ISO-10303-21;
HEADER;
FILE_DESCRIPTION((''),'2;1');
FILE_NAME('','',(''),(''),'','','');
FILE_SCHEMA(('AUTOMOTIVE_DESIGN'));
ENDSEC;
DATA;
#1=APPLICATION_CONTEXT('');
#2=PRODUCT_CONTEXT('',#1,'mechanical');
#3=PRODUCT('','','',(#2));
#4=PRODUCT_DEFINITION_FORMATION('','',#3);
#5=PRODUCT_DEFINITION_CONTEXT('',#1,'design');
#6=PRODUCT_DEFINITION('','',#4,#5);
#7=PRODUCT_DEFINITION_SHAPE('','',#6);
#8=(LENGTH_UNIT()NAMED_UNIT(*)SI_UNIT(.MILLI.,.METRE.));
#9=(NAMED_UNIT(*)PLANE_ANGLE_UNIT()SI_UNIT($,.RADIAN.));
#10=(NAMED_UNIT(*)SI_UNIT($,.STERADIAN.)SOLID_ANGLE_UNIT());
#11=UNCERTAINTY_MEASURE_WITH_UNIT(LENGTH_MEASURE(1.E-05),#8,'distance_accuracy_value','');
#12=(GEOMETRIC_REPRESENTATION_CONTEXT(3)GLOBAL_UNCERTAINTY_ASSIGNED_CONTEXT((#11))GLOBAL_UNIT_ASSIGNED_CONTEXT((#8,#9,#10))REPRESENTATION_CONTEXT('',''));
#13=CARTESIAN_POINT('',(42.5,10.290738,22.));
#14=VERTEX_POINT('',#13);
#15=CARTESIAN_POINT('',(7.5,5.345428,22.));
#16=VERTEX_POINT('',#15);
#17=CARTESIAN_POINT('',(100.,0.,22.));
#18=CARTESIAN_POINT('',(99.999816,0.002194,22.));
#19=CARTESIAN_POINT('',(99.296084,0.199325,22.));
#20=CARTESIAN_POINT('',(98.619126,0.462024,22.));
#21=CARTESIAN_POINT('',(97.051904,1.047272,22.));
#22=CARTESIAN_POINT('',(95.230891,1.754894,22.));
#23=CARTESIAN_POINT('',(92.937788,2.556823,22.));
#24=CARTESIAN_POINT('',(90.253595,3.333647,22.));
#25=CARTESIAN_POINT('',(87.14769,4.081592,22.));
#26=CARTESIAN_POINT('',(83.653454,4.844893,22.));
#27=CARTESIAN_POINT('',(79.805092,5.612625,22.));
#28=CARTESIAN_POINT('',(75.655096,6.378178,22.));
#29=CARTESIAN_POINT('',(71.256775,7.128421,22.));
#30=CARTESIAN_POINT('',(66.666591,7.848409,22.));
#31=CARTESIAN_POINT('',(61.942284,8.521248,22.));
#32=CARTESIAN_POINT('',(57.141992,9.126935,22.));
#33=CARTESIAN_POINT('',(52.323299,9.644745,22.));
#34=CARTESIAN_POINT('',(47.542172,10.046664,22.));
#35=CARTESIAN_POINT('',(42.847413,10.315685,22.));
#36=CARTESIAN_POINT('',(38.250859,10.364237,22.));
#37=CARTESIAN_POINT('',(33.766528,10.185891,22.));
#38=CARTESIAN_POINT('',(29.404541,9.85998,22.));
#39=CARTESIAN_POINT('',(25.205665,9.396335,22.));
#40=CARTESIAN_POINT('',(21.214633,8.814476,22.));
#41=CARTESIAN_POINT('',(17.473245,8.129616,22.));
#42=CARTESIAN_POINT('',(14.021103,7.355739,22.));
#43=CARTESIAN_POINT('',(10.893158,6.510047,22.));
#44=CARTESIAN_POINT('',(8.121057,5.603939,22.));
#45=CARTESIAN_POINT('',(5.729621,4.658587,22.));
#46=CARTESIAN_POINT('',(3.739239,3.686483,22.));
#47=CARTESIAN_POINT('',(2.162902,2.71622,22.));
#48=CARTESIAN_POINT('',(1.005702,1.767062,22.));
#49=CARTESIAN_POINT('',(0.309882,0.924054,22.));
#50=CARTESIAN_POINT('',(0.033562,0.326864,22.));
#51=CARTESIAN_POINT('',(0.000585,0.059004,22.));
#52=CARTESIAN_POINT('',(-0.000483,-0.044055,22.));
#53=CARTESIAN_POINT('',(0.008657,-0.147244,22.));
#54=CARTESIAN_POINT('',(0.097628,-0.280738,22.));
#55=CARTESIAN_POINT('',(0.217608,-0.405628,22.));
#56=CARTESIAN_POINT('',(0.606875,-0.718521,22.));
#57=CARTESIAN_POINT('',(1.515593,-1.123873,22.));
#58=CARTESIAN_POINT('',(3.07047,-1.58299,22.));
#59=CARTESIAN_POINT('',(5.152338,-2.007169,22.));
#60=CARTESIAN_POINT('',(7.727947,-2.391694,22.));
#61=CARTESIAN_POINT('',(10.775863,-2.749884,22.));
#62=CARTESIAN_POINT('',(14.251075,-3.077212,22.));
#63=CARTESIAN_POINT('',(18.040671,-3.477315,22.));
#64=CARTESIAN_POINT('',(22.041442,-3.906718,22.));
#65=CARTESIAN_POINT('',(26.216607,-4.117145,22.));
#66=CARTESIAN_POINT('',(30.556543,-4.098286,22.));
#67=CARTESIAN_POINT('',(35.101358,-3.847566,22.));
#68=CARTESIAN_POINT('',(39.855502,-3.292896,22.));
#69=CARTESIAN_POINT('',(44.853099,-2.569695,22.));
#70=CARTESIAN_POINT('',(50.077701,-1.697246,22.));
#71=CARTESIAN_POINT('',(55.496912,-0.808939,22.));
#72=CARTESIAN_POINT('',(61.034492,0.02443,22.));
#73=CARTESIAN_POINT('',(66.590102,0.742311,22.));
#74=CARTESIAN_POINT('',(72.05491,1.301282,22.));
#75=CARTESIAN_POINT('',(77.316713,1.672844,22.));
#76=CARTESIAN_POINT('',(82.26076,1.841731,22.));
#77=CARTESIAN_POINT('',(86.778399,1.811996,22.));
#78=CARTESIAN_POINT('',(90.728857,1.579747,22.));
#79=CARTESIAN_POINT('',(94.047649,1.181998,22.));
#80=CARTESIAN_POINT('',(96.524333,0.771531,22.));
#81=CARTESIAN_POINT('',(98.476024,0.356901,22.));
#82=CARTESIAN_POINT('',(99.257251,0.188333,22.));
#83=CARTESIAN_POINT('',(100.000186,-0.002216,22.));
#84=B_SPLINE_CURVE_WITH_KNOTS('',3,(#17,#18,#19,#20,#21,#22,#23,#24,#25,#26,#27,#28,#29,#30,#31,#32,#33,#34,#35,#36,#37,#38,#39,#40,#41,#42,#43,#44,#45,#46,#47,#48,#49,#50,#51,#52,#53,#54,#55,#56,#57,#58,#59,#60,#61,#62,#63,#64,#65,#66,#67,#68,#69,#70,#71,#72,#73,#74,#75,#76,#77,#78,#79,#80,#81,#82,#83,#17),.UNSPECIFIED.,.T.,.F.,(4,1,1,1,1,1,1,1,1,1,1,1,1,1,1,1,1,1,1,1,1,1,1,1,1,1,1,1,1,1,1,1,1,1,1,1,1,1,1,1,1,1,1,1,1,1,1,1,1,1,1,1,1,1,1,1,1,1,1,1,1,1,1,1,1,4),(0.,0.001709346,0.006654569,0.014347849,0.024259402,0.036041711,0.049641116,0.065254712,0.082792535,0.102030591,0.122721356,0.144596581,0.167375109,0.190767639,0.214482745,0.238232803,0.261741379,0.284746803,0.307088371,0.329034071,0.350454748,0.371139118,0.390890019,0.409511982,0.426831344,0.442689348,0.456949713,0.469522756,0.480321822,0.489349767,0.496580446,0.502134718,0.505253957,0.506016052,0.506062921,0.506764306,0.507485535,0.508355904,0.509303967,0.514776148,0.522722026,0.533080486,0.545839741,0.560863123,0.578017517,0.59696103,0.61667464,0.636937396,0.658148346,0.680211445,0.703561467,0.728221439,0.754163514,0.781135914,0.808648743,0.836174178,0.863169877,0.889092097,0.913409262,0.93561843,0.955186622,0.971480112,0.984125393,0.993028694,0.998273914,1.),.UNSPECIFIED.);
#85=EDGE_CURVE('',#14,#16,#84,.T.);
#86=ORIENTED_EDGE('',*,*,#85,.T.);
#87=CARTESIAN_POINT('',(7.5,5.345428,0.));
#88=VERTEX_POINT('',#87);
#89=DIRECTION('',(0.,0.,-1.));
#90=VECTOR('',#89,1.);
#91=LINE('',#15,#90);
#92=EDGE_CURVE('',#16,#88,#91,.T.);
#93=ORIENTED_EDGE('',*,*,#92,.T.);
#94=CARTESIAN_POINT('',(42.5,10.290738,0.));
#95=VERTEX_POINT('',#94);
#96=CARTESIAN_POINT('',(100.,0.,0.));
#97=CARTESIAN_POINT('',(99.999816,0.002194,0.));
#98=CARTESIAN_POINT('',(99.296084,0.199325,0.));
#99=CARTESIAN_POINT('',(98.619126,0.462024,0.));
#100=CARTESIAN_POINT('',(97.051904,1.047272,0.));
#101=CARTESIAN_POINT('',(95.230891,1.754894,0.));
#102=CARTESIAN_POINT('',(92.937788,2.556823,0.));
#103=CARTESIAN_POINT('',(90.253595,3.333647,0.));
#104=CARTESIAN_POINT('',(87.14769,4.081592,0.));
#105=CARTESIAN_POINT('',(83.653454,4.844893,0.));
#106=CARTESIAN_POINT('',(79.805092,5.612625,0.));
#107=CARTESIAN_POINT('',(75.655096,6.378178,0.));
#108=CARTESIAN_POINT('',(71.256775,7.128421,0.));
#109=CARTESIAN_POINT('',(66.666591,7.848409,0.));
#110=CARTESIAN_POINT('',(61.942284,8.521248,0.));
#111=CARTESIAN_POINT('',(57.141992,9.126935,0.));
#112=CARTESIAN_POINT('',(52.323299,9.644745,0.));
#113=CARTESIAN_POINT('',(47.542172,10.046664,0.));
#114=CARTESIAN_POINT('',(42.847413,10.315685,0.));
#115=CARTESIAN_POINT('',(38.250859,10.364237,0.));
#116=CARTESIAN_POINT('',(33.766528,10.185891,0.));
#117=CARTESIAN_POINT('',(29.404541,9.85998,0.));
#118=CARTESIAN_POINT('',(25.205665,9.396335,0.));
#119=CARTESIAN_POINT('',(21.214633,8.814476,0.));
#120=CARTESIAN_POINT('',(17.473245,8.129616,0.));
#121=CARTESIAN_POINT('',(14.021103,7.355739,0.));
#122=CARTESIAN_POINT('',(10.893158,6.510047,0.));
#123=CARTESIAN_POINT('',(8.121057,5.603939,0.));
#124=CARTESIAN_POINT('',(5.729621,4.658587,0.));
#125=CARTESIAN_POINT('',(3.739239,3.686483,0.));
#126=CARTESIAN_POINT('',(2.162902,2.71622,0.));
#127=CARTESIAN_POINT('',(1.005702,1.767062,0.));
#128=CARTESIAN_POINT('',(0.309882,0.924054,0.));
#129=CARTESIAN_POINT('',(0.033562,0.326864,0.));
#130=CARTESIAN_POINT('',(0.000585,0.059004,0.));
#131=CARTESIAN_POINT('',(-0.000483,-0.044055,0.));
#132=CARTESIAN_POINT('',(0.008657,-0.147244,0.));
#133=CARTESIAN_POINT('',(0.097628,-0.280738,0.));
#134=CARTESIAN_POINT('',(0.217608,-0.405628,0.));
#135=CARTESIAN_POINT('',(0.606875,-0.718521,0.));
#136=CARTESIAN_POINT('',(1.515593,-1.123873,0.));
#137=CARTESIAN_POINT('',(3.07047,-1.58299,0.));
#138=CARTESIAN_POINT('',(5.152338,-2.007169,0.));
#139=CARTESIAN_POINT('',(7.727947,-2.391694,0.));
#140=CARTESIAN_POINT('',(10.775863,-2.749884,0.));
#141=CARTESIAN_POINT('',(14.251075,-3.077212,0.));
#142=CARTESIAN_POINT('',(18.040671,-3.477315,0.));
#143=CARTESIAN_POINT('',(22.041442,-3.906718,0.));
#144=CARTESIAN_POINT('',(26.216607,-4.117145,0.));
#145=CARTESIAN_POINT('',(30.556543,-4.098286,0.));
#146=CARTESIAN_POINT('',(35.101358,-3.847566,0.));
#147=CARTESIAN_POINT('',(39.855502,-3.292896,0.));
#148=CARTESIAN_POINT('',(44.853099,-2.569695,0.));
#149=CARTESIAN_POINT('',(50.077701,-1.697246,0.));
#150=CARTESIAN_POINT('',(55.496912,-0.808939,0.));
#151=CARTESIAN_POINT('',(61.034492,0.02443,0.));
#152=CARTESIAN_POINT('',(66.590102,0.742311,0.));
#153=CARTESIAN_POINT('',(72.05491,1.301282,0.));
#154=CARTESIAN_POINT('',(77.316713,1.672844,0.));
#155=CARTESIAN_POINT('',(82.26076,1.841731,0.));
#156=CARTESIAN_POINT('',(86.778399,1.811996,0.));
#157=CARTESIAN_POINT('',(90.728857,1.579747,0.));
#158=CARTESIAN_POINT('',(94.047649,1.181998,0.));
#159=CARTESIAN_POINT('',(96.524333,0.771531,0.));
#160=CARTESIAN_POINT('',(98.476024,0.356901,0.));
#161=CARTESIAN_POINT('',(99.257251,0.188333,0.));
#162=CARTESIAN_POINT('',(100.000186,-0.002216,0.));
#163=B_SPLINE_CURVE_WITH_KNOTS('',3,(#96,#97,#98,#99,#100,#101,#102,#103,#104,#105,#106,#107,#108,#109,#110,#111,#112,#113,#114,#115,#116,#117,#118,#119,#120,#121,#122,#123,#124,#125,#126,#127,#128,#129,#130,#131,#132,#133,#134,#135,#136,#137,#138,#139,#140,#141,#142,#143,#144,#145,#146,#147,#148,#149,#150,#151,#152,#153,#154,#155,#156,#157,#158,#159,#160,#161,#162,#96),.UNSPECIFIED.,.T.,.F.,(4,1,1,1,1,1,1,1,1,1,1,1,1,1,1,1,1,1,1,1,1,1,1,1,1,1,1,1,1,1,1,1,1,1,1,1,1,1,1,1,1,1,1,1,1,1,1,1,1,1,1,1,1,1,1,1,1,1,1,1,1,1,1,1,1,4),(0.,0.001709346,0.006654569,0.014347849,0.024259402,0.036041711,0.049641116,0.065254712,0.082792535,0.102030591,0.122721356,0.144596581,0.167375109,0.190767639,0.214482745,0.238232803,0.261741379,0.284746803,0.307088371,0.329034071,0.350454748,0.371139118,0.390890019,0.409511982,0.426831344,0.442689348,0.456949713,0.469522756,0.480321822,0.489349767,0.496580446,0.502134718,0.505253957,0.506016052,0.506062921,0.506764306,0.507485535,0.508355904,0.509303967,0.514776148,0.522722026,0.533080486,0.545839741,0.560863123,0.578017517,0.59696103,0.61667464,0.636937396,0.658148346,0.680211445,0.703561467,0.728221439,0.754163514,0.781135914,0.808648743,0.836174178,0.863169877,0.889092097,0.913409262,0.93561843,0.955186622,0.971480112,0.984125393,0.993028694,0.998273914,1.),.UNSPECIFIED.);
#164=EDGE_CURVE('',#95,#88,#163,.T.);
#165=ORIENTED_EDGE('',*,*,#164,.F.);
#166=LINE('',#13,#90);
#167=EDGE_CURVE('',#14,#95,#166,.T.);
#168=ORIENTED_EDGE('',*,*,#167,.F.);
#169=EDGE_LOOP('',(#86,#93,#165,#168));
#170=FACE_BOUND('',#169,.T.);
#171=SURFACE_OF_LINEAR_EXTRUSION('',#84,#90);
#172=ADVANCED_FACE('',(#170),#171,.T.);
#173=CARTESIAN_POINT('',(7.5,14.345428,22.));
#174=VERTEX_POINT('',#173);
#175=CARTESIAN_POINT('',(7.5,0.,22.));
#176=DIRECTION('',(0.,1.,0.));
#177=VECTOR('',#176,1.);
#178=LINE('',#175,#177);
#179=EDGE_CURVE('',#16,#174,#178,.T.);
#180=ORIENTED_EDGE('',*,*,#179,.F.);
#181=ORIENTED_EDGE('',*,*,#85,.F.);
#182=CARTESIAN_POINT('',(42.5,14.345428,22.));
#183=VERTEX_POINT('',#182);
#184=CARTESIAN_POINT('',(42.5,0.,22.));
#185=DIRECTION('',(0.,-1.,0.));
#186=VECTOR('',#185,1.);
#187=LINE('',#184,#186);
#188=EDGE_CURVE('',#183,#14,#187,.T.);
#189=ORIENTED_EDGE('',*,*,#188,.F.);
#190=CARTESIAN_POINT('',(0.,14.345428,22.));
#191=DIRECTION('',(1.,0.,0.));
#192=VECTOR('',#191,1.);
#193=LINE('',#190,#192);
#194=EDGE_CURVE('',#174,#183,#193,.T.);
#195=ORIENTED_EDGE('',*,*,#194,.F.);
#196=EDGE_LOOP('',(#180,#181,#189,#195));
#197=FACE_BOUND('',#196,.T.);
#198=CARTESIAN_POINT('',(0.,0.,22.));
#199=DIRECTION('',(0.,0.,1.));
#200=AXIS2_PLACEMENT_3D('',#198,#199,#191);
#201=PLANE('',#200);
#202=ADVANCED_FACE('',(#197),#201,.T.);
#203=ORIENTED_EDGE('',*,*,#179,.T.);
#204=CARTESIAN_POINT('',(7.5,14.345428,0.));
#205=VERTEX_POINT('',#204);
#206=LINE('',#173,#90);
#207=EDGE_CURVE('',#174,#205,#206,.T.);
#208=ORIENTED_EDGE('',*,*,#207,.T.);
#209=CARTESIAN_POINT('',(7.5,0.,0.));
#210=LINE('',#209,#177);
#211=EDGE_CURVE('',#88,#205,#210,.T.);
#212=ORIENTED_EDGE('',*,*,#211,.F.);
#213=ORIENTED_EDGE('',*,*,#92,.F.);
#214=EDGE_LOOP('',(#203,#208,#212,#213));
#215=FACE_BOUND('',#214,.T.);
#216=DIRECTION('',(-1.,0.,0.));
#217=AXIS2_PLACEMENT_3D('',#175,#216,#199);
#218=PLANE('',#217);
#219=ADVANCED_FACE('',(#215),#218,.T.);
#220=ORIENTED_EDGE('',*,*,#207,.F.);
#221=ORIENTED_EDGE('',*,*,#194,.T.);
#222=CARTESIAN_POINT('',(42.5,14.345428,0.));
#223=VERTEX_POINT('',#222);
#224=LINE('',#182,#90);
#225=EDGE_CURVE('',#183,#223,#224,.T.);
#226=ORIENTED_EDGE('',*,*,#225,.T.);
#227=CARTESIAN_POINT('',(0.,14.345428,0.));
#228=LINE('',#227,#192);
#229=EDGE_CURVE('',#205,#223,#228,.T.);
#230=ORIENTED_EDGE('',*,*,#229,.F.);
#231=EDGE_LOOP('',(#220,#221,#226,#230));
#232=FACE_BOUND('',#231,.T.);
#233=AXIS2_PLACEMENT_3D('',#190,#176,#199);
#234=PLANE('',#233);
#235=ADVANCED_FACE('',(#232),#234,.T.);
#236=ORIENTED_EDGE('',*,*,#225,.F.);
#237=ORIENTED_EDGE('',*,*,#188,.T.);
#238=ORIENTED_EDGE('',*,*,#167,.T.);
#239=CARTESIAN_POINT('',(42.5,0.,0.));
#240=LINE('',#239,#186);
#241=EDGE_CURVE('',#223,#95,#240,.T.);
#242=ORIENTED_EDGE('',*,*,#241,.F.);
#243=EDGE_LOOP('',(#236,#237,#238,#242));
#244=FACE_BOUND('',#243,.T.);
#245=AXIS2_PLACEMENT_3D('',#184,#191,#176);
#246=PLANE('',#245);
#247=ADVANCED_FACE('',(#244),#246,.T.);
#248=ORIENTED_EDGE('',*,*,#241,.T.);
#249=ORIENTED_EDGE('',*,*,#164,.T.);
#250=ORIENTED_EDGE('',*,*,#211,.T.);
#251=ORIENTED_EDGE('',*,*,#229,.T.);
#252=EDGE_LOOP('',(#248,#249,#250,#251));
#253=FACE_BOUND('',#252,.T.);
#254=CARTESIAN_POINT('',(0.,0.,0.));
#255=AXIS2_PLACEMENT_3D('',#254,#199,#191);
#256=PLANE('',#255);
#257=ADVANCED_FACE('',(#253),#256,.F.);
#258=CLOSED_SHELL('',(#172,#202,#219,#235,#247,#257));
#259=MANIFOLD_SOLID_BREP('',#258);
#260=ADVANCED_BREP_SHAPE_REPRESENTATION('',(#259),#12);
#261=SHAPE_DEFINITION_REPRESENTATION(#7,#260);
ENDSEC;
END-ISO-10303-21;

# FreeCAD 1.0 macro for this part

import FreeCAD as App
import Part
import Sketcher

V = App.Vector
Q = App.Units.Quantity

doc = App.newDocument("Part")
body = doc.addObject("PartDesign::Body", "Body")

sketch1 = body.newObject("Sketcher::SketchObject", "Sketch")
sketch1.AttachmentSupport = (doc.getObject("XY_Plane"), [""])
sketch1.MapMode = "FlatFace"
sketch1.addGeometry(Part.LineSegment(V(7.5, 14.345428, 0), V(7.5, 5.345428, 0)), False)
sketch1.addGeometry(Part.BSplineCurve([V(42.5, 10.290738, 0), V(41.075352, 10.334235, 0), V(38.15063, 10.360251, 0), V(33.766528, 10.185891, 0), V(29.404541, 9.85998, 0), V(25.205665, 9.396335, 0), V(21.214633, 8.814476, 0), V(17.473245, 8.129616, 0), V(14.021103, 7.355739, 0), V(10.893158, 6.510047, 0), V(8.761065, 5.813136, 0), V(7.673577, 5.410958, 0), V(7.5, 5.345428, 0)], [4, 1, 1, 1, 1, 1, 1, 1, 1, 1, 4], [0.286215433, 0.307088371, 0.329034071, 0.350454748, 0.371139118, 0.390890019, 0.409511982, 0.426831344, 0.442689348, 0.456949713, 0.459666394], False, 3, [1, 1, 1, 1, 1, 1, 1, 1, 1, 1, 1, 1, 1], False), False)
sketch1.addGeometry(Part.LineSegment(V(42.5, 10.290738, 0), V(42.5, 14.345428, 0)), False)
sketch1.addGeometry(Part.LineSegment(V(42.5, 14.345428, 0), V(7.5, 14.345428, 0)), False)
sketch1.addConstraint(Sketcher.Constraint("Block", 1))
sketch1.addConstraint(Sketcher.Constraint("Coincident", 0, 2, 1, 2))
sketch1.addConstraint(Sketcher.Constraint("Coincident", 1, 1, 2, 1))
sketch1.addConstraint(Sketcher.Constraint("Coincident", 2, 2, 3, 1))
sketch1.addConstraint(Sketcher.Constraint("Coincident", 3, 2, 0, 1))
sketch1.addConstraint(Sketcher.Constraint("Vertical", 0))
sketch1.addConstraint(Sketcher.Constraint("Vertical", 2))
sketch1.addConstraint(Sketcher.Constraint("Horizontal", 3))
sketch1.addConstraint(Sketcher.Constraint("DistanceY", 0, 2, 0, 1, Q("9 mm")))
pad1 = body.newObject("PartDesign::Pad", "Pad")
pad1.Profile = sketch1
pad1.Length = 22

doc.recompute()
